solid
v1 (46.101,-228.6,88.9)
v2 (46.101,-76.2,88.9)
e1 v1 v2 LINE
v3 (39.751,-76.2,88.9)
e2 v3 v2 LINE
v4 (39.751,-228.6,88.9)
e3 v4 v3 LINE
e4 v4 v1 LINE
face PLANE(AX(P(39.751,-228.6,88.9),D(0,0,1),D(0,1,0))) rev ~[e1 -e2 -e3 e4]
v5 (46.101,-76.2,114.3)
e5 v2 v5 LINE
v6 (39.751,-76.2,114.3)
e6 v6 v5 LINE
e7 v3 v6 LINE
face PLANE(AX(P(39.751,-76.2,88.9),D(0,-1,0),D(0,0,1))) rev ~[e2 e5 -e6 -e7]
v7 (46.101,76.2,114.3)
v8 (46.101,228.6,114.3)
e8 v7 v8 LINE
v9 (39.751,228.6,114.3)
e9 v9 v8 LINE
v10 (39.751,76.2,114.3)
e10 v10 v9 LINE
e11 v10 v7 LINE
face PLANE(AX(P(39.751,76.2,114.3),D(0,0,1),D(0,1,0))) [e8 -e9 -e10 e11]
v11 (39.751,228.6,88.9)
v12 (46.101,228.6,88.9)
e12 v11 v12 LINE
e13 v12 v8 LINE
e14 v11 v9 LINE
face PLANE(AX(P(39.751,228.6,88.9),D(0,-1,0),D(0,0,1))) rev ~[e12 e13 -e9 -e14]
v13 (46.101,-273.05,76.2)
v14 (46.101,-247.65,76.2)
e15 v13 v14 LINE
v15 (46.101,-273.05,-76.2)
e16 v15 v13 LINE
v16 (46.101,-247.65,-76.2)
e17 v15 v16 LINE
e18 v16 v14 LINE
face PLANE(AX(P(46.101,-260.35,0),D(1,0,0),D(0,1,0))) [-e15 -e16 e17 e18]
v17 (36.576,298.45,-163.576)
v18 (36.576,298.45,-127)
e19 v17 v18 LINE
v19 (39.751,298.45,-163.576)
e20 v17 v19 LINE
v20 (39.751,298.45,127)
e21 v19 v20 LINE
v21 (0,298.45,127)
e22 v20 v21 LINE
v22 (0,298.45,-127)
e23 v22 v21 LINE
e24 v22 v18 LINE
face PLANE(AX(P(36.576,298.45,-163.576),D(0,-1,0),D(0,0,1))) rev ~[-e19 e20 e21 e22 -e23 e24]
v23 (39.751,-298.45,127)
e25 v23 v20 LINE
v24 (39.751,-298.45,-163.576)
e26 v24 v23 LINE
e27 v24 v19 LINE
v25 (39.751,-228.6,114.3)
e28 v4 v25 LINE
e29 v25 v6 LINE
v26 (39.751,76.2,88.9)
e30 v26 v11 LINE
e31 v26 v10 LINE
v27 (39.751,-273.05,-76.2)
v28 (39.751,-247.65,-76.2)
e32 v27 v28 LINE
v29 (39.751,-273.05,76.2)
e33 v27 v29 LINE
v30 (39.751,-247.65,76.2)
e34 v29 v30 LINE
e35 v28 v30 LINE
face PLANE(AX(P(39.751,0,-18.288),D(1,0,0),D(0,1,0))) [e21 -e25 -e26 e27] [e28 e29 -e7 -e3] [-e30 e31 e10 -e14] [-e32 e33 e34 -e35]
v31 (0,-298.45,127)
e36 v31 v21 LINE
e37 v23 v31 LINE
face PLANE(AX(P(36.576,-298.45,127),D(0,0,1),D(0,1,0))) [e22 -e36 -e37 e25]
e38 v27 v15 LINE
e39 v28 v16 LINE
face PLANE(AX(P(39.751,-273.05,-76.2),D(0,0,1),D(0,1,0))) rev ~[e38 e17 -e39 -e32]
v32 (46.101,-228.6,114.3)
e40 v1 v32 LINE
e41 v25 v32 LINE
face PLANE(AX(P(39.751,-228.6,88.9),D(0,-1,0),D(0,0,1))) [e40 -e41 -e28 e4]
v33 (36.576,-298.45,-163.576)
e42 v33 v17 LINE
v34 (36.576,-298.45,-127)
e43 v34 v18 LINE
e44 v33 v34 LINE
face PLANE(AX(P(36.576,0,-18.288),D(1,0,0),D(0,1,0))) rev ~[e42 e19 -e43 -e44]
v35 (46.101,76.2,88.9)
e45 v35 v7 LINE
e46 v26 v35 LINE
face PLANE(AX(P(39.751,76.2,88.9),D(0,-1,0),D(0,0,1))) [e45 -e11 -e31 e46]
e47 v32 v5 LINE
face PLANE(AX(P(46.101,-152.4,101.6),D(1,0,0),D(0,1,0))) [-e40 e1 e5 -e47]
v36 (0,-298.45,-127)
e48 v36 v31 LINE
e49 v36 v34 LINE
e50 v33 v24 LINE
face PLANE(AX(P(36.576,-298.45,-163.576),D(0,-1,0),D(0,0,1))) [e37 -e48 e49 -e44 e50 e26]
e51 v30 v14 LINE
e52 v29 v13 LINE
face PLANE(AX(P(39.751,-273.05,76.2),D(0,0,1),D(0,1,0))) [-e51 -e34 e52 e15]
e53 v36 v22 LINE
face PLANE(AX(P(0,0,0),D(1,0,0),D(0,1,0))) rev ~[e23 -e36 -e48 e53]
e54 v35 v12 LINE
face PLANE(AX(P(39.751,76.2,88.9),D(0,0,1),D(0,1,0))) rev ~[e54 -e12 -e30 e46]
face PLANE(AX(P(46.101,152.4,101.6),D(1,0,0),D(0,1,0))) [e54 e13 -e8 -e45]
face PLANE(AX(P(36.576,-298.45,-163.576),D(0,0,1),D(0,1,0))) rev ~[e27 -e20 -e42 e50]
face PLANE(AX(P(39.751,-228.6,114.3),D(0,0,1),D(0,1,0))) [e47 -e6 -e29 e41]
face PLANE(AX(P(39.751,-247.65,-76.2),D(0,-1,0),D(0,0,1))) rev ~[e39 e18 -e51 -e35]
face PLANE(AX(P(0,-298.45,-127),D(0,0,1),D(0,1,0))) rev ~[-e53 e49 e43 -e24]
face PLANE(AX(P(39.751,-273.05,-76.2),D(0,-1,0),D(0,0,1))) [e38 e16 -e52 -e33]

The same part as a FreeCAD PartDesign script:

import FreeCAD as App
import Part
import Sketcher
Q = App.Units.Quantity

doc = App.newDocument("Part")
params = doc.addObject("Spreadsheet::Sheet", "Params")
for row, (alias, value) in enumerate([
    ("sketch1_height", "10 in"),
    ("sketch1_width", "23.5 in"),
    ("pad1_length", "1.44 in"),
    ("sketch2_width", "23.5 in"),
    ("sketch2_height", "11.44 in"),
    ("pad2_length", "0.125 in"),
    ("sketch3_width", "6 in"),
    ("sketch3_width2", "1 in"),
    ("pad3_length", "0.25 in"),
], start=1):
    params.set(f"A{row}", alias)
    params.set(f"B{row}", "=" + value)
    params.setAlias(f"B{row}", alias)

body = doc.addObject("PartDesign::Body", "Body")

# Sketch on YZ plane
sketch1 = body.newObject("Sketcher::SketchObject", "Sketch")
sketch1.AttachmentSupport = (doc.getObject("YZ_Plane"), [""])
sketch1.MapMode = "FlatFace"
sketch1.addGeometry(Part.LineSegment(App.Vector(-298, 127, 0), App.Vector(-298, -127, 0)), False)
sketch1.addGeometry(Part.LineSegment(App.Vector(-298, -127, 0), App.Vector(298, -127, 0)), False)
sketch1.addGeometry(Part.LineSegment(App.Vector(298, -127, 0), App.Vector(298, 127, 0)), False)
sketch1.addGeometry(Part.LineSegment(App.Vector(298, 127, 0), App.Vector(-298, 127, 0)), False)
sketch1.addConstraint(Sketcher.Constraint("Coincident", 0, 2, 1, 1))
sketch1.addConstraint(Sketcher.Constraint("Coincident", 1, 2, 2, 1))
sketch1.addConstraint(Sketcher.Constraint("Coincident", 2, 2, 3, 1))
sketch1.addConstraint(Sketcher.Constraint("Coincident", 3, 2, 0, 1))
sketch1.addConstraint(Sketcher.Constraint("Vertical", 0))
sketch1.addConstraint(Sketcher.Constraint("Horizontal", 1))
sketch1.addConstraint(Sketcher.Constraint("Vertical", 2))
sketch1.addConstraint(Sketcher.Constraint("Horizontal", 3))
sketch1.addConstraint(Sketcher.Constraint("Symmetric", 0, 2, 2, 2, -1, 1))
sketch1.addConstraint(Sketcher.Constraint("DistanceY", 0, 2, 0, 1, Q("10 in")))
sketch1.addConstraint(Sketcher.Constraint("DistanceX", 1, 1, 1, 2, Q("23.5 in")))
sketch1.setExpression("Constraints[9]", "Params.sketch1_height")
sketch1.setExpression("Constraints[10]", "Params.sketch1_width")
pad1 = body.newObject("PartDesign::Pad", "Pad")
pad1.Profile = sketch1
pad1.setExpression("Length", "Params.pad1_length")

# Sketch on YZ plane
sketch2 = body.newObject("Sketcher::SketchObject", "Sketch001")
sketch2.AttachmentSupport = (doc.getObject("YZ_Plane"), [""])
sketch2.MapMode = "FlatFace"
sketch2.AttachmentOffset = App.Placement(App.Vector(0, 0, 1.44 * 25.4), App.Rotation())
sketch2.addGeometry(Part.LineSegment(App.Vector(-298, 127, 0), App.Vector(-298, -164, 0)), False)
sketch2.addGeometry(Part.LineSegment(App.Vector(-298, -164, 0), App.Vector(298, -164, 0)), False)
sketch2.addGeometry(Part.LineSegment(App.Vector(298, -164, 0), App.Vector(298, 127, 0)), False)
sketch2.addGeometry(Part.LineSegment(App.Vector(298, 127, 0), App.Vector(-298, 127, 0)), False)
sketch2.addConstraint(Sketcher.Constraint("Coincident", 0, 2, 1, 1))
sketch2.addConstraint(Sketcher.Constraint("Coincident", 1, 2, 2, 1))
sketch2.addConstraint(Sketcher.Constraint("Coincident", 2, 2, 3, 1))
sketch2.addConstraint(Sketcher.Constraint("Coincident", 3, 2, 0, 1))
sketch2.addConstraint(Sketcher.Constraint("Vertical", 0))
sketch2.addConstraint(Sketcher.Constraint("Horizontal", 1))
sketch2.addConstraint(Sketcher.Constraint("Vertical", 2))
sketch2.addConstraint(Sketcher.Constraint("Horizontal", 3))
sketch2.addConstraint(Sketcher.Constraint("DistanceX", 1, 1, 1, 2, Q("23.5 in")))
sketch2.addConstraint(Sketcher.Constraint("DistanceY", -1, 1, 2, 2, Q("5 in")))
sketch2.addConstraint(Sketcher.Constraint("DistanceY", 0, 2, 0, 1, Q("11.44 in")))
sketch2.addConstraint(Sketcher.Constraint("DistanceX", 0, 2, -1, 1, Q("11.75 in")))
sketch2.setExpression("Constraints[8]", "Params.sketch2_width")
sketch2.setExpression("Constraints[10]", "Params.sketch2_height")
pad2 = body.newObject("PartDesign::Pad", "Pad001")
pad2.Profile = sketch2
pad2.setExpression("Length", "Params.pad2_length")

# Sketch on YZ plane
sketch3 = body.newObject("Sketcher::SketchObject", "Sketch002")
sketch3.AttachmentSupport = (doc.getObject("YZ_Plane"), [""])
sketch3.MapMode = "FlatFace"
sketch3.AttachmentOffset = App.Placement(App.Vector(0, 0, 1.565 * 25.4), App.Rotation())
sketch3.addGeometry(Part.LineSegment(App.Vector(76, 114, 0), App.Vector(76, 89, 0)), False)
sketch3.addGeometry(Part.LineSegment(App.Vector(76, 89, 0), App.Vector(229, 89, 0)), False)
sketch3.addGeometry(Part.LineSegment(App.Vector(229, 89, 0), App.Vector(229, 114, 0)), False)
sketch3.addGeometry(Part.LineSegment(App.Vector(229, 114, 0), App.Vector(76, 114, 0)), False)
sketch3.addGeometry(Part.LineSegment(App.Vector(-273, 76, 0), App.Vector(-273, -76, 0)), False)
sketch3.addGeometry(Part.LineSegment(App.Vector(-273, -76, 0), App.Vector(-248, -76, 0)), False)
sketch3.addGeometry(Part.LineSegment(App.Vector(-248, -76, 0), App.Vector(-248, 76, 0)), False)
sketch3.addGeometry(Part.LineSegment(App.Vector(-248, 76, 0), App.Vector(-273, 76, 0)), False)
sketch3.addGeometry(Part.LineSegment(App.Vector(-229, 114, 0), App.Vector(-229, 89, 0)), False)
sketch3.addGeometry(Part.LineSegment(App.Vector(-229, 89, 0), App.Vector(-76, 89, 0)), False)
sketch3.addGeometry(Part.LineSegment(App.Vector(-76, 89, 0), App.Vector(-76, 114, 0)), False)
sketch3.addGeometry(Part.LineSegment(App.Vector(-76, 114, 0), App.Vector(-229, 114, 0)), False)
sketch3.addConstraint(Sketcher.Constraint("Coincident", 0, 2, 1, 1))
sketch3.addConstraint(Sketcher.Constraint("Coincident", 1, 2, 2, 1))
sketch3.addConstraint(Sketcher.Constraint("Coincident", 2, 2, 3, 1))
sketch3.addConstraint(Sketcher.Constraint("Coincident", 3, 2, 0, 1))
sketch3.addConstraint(Sketcher.Constraint("Coincident", 4, 2, 5, 1))
sketch3.addConstraint(Sketcher.Constraint("Coincident", 5, 2, 6, 1))
sketch3.addConstraint(Sketcher.Constraint("Coincident", 6, 2, 7, 1))
sketch3.addConstraint(Sketcher.Constraint("Coincident", 7, 2, 4, 1))
sketch3.addConstraint(Sketcher.Constraint("Coincident", 8, 2, 9, 1))
sketch3.addConstraint(Sketcher.Constraint("Coincident", 9, 2, 10, 1))
sketch3.addConstraint(Sketcher.Constraint("Coincident", 10, 2, 11, 1))
sketch3.addConstraint(Sketcher.Constraint("Coincident", 11, 2, 8, 1))
sketch3.addConstraint(Sketcher.Constraint("Vertical", 0))
sketch3.addConstraint(Sketcher.Constraint("Horizontal", 1))
sketch3.addConstraint(Sketcher.Constraint("Vertical", 2))
sketch3.addConstraint(Sketcher.Constraint("Horizontal", 3))
sketch3.addConstraint(Sketcher.Constraint("Vertical", 4))
sketch3.addConstraint(Sketcher.Constraint("Horizontal", 5))
sketch3.addConstraint(Sketcher.Constraint("Vertical", 6))
sketch3.addConstraint(Sketcher.Constraint("Horizontal", 7))
sketch3.addConstraint(Sketcher.Constraint("Vertical", 8))
sketch3.addConstraint(Sketcher.Constraint("Horizontal", 9))
sketch3.addConstraint(Sketcher.Constraint("Vertical", 10))
sketch3.addConstraint(Sketcher.Constraint("Horizontal", 11))
sketch3.addConstraint(Sketcher.Constraint("Symmetric", 1, 2, 8, 2, -2))
sketch3.addConstraint(Sketcher.Constraint("Symmetric", 3, 2, 10, 2, -2))
sketch3.addConstraint(Sketcher.Constraint("Equal", 7, 0))
sketch3.addConstraint(Sketcher.Constraint("Equal", 11, 4))
sketch3.addConstraint(Sketcher.Constraint("DistanceX", 1, 1, 1, 2, Q("6 in")))
sketch3.addConstraint(Sketcher.Constraint("DistanceX", 5, 1, 5, 2, Q("1 in")))
sketch3.addConstraint(Sketcher.Constraint("DistanceX", -1, 1, 0, 2, Q("3 in")))
sketch3.addConstraint(Sketcher.Constraint("DistanceY", 4, 2, -1, 1, Q("3 in")))
sketch3.addConstraint(Sketcher.Constraint("DistanceY", -1, 1, 0, 2, Q("3.5 in")))
sketch3.addConstraint(Sketcher.Constraint("DistanceX", 4, 2, -1, 1, Q("10.75 in")))
sketch3.setExpression("Constraints[28]", "Params.sketch3_width")
sketch3.setExpression("Constraints[29]", "Params.sketch3_width2")
pad3 = body.newObject("PartDesign::Pad", "Pad002")
pad3.Profile = sketch3
pad3.setExpression("Length", "Params.pad3_length")

doc.recompute()
